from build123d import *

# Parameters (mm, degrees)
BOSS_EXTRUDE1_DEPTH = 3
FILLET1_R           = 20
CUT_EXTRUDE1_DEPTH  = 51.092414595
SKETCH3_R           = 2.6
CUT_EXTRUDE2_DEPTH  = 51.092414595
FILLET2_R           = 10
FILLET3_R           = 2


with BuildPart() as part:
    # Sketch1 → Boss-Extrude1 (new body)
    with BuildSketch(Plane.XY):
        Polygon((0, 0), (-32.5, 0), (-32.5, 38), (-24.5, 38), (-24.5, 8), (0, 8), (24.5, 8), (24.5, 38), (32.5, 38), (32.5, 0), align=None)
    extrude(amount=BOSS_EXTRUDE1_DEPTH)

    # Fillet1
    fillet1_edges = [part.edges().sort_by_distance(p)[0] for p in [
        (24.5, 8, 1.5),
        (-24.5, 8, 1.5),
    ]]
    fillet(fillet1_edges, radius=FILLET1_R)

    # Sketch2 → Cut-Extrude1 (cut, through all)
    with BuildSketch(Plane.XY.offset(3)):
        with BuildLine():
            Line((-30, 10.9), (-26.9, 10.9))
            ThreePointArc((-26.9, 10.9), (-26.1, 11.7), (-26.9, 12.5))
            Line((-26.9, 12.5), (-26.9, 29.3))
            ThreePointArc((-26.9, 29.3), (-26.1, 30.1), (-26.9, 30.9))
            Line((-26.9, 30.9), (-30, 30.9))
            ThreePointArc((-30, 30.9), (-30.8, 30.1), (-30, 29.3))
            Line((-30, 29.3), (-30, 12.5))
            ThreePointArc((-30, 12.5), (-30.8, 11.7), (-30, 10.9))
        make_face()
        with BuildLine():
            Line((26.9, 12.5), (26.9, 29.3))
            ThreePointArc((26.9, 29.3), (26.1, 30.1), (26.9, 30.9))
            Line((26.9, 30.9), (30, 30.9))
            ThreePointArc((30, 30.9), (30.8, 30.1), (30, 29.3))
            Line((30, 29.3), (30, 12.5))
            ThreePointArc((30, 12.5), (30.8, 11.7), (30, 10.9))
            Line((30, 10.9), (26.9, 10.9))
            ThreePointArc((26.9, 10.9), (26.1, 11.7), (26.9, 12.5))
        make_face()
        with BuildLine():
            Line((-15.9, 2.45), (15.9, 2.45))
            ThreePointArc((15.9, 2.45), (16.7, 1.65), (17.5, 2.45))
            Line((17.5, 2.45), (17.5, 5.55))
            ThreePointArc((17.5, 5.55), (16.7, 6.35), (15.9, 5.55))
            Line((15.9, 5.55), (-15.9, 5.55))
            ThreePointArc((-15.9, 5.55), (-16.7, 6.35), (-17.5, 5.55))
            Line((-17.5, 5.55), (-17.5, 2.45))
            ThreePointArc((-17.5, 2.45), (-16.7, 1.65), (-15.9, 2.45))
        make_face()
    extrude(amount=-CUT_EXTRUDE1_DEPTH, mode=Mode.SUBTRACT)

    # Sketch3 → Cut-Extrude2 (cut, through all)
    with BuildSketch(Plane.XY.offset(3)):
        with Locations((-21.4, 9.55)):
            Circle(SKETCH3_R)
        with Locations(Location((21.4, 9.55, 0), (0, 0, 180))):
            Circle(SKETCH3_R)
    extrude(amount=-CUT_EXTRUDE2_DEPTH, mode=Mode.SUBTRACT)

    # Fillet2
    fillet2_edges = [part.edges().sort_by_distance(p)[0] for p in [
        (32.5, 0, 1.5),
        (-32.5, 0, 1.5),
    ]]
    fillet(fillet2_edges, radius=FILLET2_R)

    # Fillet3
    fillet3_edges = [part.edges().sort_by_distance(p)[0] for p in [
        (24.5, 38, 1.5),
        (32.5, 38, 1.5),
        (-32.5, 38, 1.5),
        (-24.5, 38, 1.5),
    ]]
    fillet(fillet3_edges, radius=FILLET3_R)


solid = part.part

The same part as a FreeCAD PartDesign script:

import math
import FreeCAD as App
import Part
import Sketcher


def edges_at(feature, points):
    """Names of the edges that pass closest to the given points."""
    edges = feature.Shape.Edges
    near = lambda p: min(range(len(edges)), key=lambda i: edges[i].distToShape(Part.Vertex(*p))[0])
    return sorted({f"Edge{near(p) + 1}" for p in points})


def add_polygon(sketch, points):
    """Adds a closed chain of lines whose ends are joined by coincident constraints."""
    first, n = sketch.GeometryCount, len(points)
    for a, b in zip(points, points[1:] + points[:1]):
        sketch.addGeometry(Part.LineSegment(App.Vector(*a, 0), App.Vector(*b, 0)), False)
    for i in range(n):
        sketch.addConstraint(Sketcher.Constraint("Coincident", first + i, 2, first + (i + 1) % n, 1))

doc = App.newDocument("Part")
body = doc.addObject("PartDesign::Body", "Body")

sketch1 = body.newObject("Sketcher::SketchObject", "Sketch")
sketch1.AttachmentSupport = (doc.getObject("XY_Plane"), [""])
sketch1.MapMode = "FlatFace"
add_polygon(sketch1, [(-32, 0), (32, 0), (32, 38), (24, 38), (24, 8), (-24, 8), (-24, 38), (-32, 38)])
sketch1.addConstraint(Sketcher.Constraint("Horizontal", 0))
sketch1.addConstraint(Sketcher.Constraint("Vertical", 1))
sketch1.addConstraint(Sketcher.Constraint("Horizontal", 2))
sketch1.addConstraint(Sketcher.Constraint("Vertical", 3))
sketch1.addConstraint(Sketcher.Constraint("Horizontal", 4))
sketch1.addConstraint(Sketcher.Constraint("Vertical", 5))
sketch1.addConstraint(Sketcher.Constraint("Horizontal", 6))
sketch1.addConstraint(Sketcher.Constraint("Vertical", 7))
sketch1.addConstraint(Sketcher.Constraint("Symmetric", 0, 2, 7, 2, -1, 1))
sketch1.addConstraint(Sketcher.Constraint("Symmetric", 2, 2, 5, 2, -2))
sketch1.addConstraint(Sketcher.Constraint("DistanceX", 0, 1, 0, 2, 65.0))
sketch1.addConstraint(Sketcher.Constraint("DistanceX", 2, 2, 2, 1, 8.0))
sketch1.addConstraint(Sketcher.Constraint("DistanceY", 1, 1, 1, 2, 38.0))
sketch1.addConstraint(Sketcher.Constraint("DistanceY", 3, 2, 3, 1, 30.0))
pad1 = body.newObject("PartDesign::Pad", "Pad")
pad1.Profile = sketch1
pad1.Length = 3
doc.recompute()

fillet = body.newObject("PartDesign::Fillet", "Fillet")
fillet.Base = (pad1, edges_at(pad1, [(24.5, 8, 1.5), (-24.5, 8, 1.5)]))
fillet.Radius = 20

sketch2 = body.newObject("Sketcher::SketchObject", "Sketch001")
sketch2.AttachmentSupport = (doc.getObject("XY_Plane"), [""])
sketch2.MapMode = "FlatFace"
sketch2.AttachmentOffset = App.Placement(App.Vector(0, 0, 3), App.Rotation())
sketch2.addGeometry(Part.LineSegment(App.Vector(-30, 10.9, 0), App.Vector(-26.9, 10.9, 0)), False)
sketch2.addGeometry(Part.ArcOfCircle(Part.Circle(App.Vector(-26.9, 11.7, 0), App.Vector(0, 0, 1), 0.8), math.radians(-90), math.radians(90)), False)
sketch2.addGeometry(Part.LineSegment(App.Vector(-26.9, 12.5, 0), App.Vector(-26.9, 29.3, 0)), False)
sketch2.addGeometry(Part.ArcOfCircle(Part.Circle(App.Vector(-26.9, 30.1, 0), App.Vector(0, 0, 1), 0.8), math.radians(-90), math.radians(90)), False)
sketch2.addGeometry(Part.LineSegment(App.Vector(-26.9, 30.9, 0), App.Vector(-30, 30.9, 0)), False)
sketch2.addGeometry(Part.ArcOfCircle(Part.Circle(App.Vector(-30, 30.1, 0), App.Vector(0, 0, 1), 0.8), math.radians(90), math.radians(270)), False)
sketch2.addGeometry(Part.LineSegment(App.Vector(-30, 29.3, 0), App.Vector(-30, 12.5, 0)), False)
sketch2.addGeometry(Part.ArcOfCircle(Part.Circle(App.Vector(-30, 11.7, 0), App.Vector(0, 0, 1), 0.8), math.radians(90), math.radians(270)), False)
sketch2.addGeometry(Part.LineSegment(App.Vector(26.9, 29.3, 0), App.Vector(26.9, 12.5, 0)), False)
sketch2.addGeometry(Part.ArcOfCircle(Part.Circle(App.Vector(26.9, 11.7, 0), App.Vector(0, 0, 1), 0.8), math.radians(90), math.radians(270)), False)
sketch2.addGeometry(Part.LineSegment(App.Vector(26.9, 10.9, 0), App.Vector(30, 10.9, 0)), False)
sketch2.addGeometry(Part.ArcOfCircle(Part.Circle(App.Vector(30, 11.7, 0), App.Vector(0, 0, 1), 0.8), math.radians(-90), math.radians(90)), False)
sketch2.addGeometry(Part.LineSegment(App.Vector(30, 12.5, 0), App.Vector(30, 29.3, 0)), False)
sketch2.addGeometry(Part.ArcOfCircle(Part.Circle(App.Vector(30, 30.1, 0), App.Vector(0, 0, 1), 0.8), math.radians(-90), math.radians(90)), False)
sketch2.addGeometry(Part.LineSegment(App.Vector(30, 30.9, 0), App.Vector(26.9, 30.9, 0)), False)
sketch2.addGeometry(Part.ArcOfCircle(Part.Circle(App.Vector(26.9, 30.1, 0), App.Vector(0, 0, 1), 0.8), math.radians(90), math.radians(270)), False)
sketch2.addGeometry(Part.LineSegment(App.Vector(-15.9, 2.5, 0), App.Vector(15.9, 2.5, 0)), False)
sketch2.addGeometry(Part.ArcOfCircle(Part.Circle(App.Vector(16.7, 2.5, 0), App.Vector(0, 0, 1), 0.8), math.radians(180), math.radians(360)), False)
sketch2.addGeometry(Part.LineSegment(App.Vector(17.5, 2.5, 0), App.Vector(17.5, 5.5, 0)), False)
sketch2.addGeometry(Part.ArcOfCircle(Part.Circle(App.Vector(16.7, 5.5, 0), App.Vector(0, 0, 1), 0.8), math.radians(0), math.radians(180)), False)
sketch2.addGeometry(Part.LineSegment(App.Vector(15.9, 5.5, 0), App.Vector(-15.9, 5.5, 0)), False)
sketch2.addGeometry(Part.ArcOfCircle(Part.Circle(App.Vector(-16.7, 5.5, 0), App.Vector(0, 0, 1), 0.8), math.radians(0), math.radians(180)), False)
sketch2.addGeometry(Part.LineSegment(App.Vector(-17.5, 5.5, 0), App.Vector(-17.5, 2.5, 0)), False)
sketch2.addGeometry(Part.ArcOfCircle(Part.Circle(App.Vector(-16.7, 2.5, 0), App.Vector(0, 0, 1), 0.8), math.radians(180), math.radians(360)), False)
sketch2.addConstraint(Sketcher.Constraint("Tangent", 0, 2, 1, 1))
sketch2.addConstraint(Sketcher.Constraint("Coincident", 1, 2, 2, 1))
sketch2.addConstraint(Sketcher.Constraint("Coincident", 2, 2, 3, 1))
sketch2.addConstraint(Sketcher.Constraint("Tangent", 3, 2, 4, 1))
sketch2.addConstraint(Sketcher.Constraint("Tangent", 4, 2, 5, 1))
sketch2.addConstraint(Sketcher.Constraint("Coincident", 5, 2, 6, 1))
sketch2.addConstraint(Sketcher.Constraint("Coincident", 6, 2, 7, 1))
sketch2.addConstraint(Sketcher.Constraint("Tangent", 7, 2, 0, 1))
sketch2.addConstraint(Sketcher.Constraint("Coincident", 8, 2, 9, 1))
sketch2.addConstraint(Sketcher.Constraint("Tangent", 9, 2, 10, 1))
sketch2.addConstraint(Sketcher.Constraint("Tangent", 10, 2, 11, 1))
sketch2.addConstraint(Sketcher.Constraint("Coincident", 11, 2, 12, 1))
sketch2.addConstraint(Sketcher.Constraint("Coincident", 12, 2, 13, 1))
sketch2.addConstraint(Sketcher.Constraint("Tangent", 13, 2, 14, 1))
sketch2.addConstraint(Sketcher.Constraint("Tangent", 14, 2, 15, 1))
sketch2.addConstraint(Sketcher.Constraint("Coincident", 15, 2, 8, 1))
sketch2.addConstraint(Sketcher.Constraint("Coincident", 16, 2, 17, 1))
sketch2.addConstraint(Sketcher.Constraint("Tangent", 17, 2, 18, 1))
sketch2.addConstraint(Sketcher.Constraint("Tangent", 18, 2, 19, 1))
sketch2.addConstraint(Sketcher.Constraint("Coincident", 19, 2, 20, 1))
sketch2.addConstraint(Sketcher.Constraint("Coincident", 20, 2, 21, 1))
sketch2.addConstraint(Sketcher.Constraint("Tangent", 21, 2, 22, 1))
sketch2.addConstraint(Sketcher.Constraint("Tangent", 22, 2, 23, 1))
sketch2.addConstraint(Sketcher.Constraint("Coincident", 23, 2, 16, 1))
sketch2.addConstraint(Sketcher.Constraint("Horizontal", 0))
sketch2.addConstraint(Sketcher.Constraint("Vertical", 2))
sketch2.addConstraint(Sketcher.Constraint("Horizontal", 4))
sketch2.addConstraint(Sketcher.Constraint("Vertical", 6))
sketch2.addConstraint(Sketcher.Constraint("Vertical", 8))
sketch2.addConstraint(Sketcher.Constraint("Horizontal", 10))
sketch2.addConstraint(Sketcher.Constraint("Vertical", 12))
sketch2.addConstraint(Sketcher.Constraint("Horizontal", 14))
sketch2.addConstraint(Sketcher.Constraint("Horizontal", 16))
sketch2.addConstraint(Sketcher.Constraint("Vertical", 18))
sketch2.addConstraint(Sketcher.Constraint("Horizontal", 20))
sketch2.addConstraint(Sketcher.Constraint("Vertical", 22))
sketch2.addConstraint(Sketcher.Constraint("Equal", 1, 3))
sketch2.addConstraint(Sketcher.Constraint("Equal", 3, 5))
sketch2.addConstraint(Sketcher.Constraint("Equal", 5, 7))
sketch2.addConstraint(Sketcher.Constraint("Equal", 7, 9))
sketch2.addConstraint(Sketcher.Constraint("Equal", 9, 11))
sketch2.addConstraint(Sketcher.Constraint("Equal", 11, 13))
sketch2.addConstraint(Sketcher.Constraint("Equal", 13, 15))
sketch2.addConstraint(Sketcher.Constraint("Equal", 15, 17))
sketch2.addConstraint(Sketcher.Constraint("Equal", 17, 19))
sketch2.addConstraint(Sketcher.Constraint("Equal", 19, 21))
sketch2.addConstraint(Sketcher.Constraint("Equal", 21, 23))
sketch2.addConstraint(Sketcher.Constraint("Symmetric", 1, 3, 9, 3, -2))
sketch2.addConstraint(Sketcher.Constraint("Symmetric", 5, 3, 13, 3, -2))
sketch2.addConstraint(Sketcher.Constraint("Symmetric", 19, 3, 21, 3, -2))
sketch2.addConstraint(Sketcher.Constraint("Horizontal", 17, 3, 23, 3))
sketch2.addConstraint(Sketcher.Constraint("Horizontal", 23, 3, 16, 2))
sketch2.addConstraint(Sketcher.Constraint("Horizontal", 18, 2, 19, 2))
sketch2.addConstraint(Sketcher.Constraint("Vertical", 1, 3, 3, 3))
sketch2.addConstraint(Sketcher.Constraint("Vertical", 5, 3, 7, 3))
sketch2.addConstraint(Sketcher.Constraint("Vertical", 11, 3, 13, 3))
sketch2.addConstraint(Sketcher.Constraint("Vertical", 9, 3, 15, 3))
sketch2.addConstraint(Sketcher.Constraint("Vertical", 0, 2, 1, 2))
sketch2.addConstraint(Sketcher.Constraint("Vertical", 4, 2, 5, 2))
sketch2.addConstraint(Sketcher.Constraint("Vertical", 15, 3, 8, 2))
sketch2.addConstraint(Sketcher.Constraint("Vertical", 10, 2, 11, 2))
sketch2.addConstraint(Sketcher.Constraint("Equal", 14, 18))
sketch2.addConstraint(Sketcher.Constraint("Radius", 1, 0.8))
sketch2.addConstraint(Sketcher.Constraint("DistanceX", 0, 1, 0, 2, 3.1))
sketch2.addConstraint(Sketcher.Constraint("DistanceX", 16, 1, 16, 2, 31.8))
sketch2.addConstraint(Sketcher.Constraint("DistanceY", 2, 1, 2, 2, 16.8))
sketch2.addConstraint(Sketcher.Constraint("DistanceX", 5, 3, -1, 1, 30.0))
sketch2.addConstraint(Sketcher.Constraint("DistanceY", -1, 1, 1, 3, 11.7))
sketch2.addConstraint(Sketcher.Constraint("DistanceY", -1, 1, 17, 3, 2.45))
pocket1 = body.newObject("PartDesign::Pocket", "Pocket")
pocket1.Profile = sketch2
pocket1.Type = "ThroughAll"

sketch3 = body.newObject("Sketcher::SketchObject", "Sketch002")
sketch3.AttachmentSupport = (doc.getObject("XY_Plane"), [""])
sketch3.MapMode = "FlatFace"
sketch3.AttachmentOffset = App.Placement(App.Vector(0, 0, 3), App.Rotation())
sketch3.addGeometry(Part.Circle(App.Vector(-21.4, 9.6, 0), App.Vector(0, 0, 1), 2.6), False)
sketch3.addGeometry(Part.Circle(App.Vector(21.4, 9.6, 0), App.Vector(0, 0, 1), 2.6), False)
sketch3.addConstraint(Sketcher.Constraint("Equal", 0, 1))
sketch3.addConstraint(Sketcher.Constraint("Symmetric", 0, 3, 1, 3, -2))
sketch3.addConstraint(Sketcher.Constraint("Diameter", 0, 5.2))
sketch3.addConstraint(Sketcher.Constraint("DistanceX", 0, 3, -1, 1, 21.4))
sketch3.addConstraint(Sketcher.Constraint("DistanceY", -1, 1, 0, 3, 9.55))
pocket2 = body.newObject("PartDesign::Pocket", "Pocket001")
pocket2.Profile = sketch3
pocket2.Type = "ThroughAll"
doc.recompute()

fillet2 = body.newObject("PartDesign::Fillet", "Fillet001")
fillet2.Base = (pocket2, edges_at(pocket2, [(32.5, 0, 1.5), (-32.5, 0, 1.5)]))
fillet2.Radius = 10
doc.recompute()

fillet3 = body.newObject("PartDesign::Fillet", "Fillet002")
fillet3.Base = (fillet2, edges_at(fillet2, [
    (24.5, 38, 1.5),
    (32.5, 38, 1.5),
    (-32.5, 38, 1.5),
    (-24.5, 38, 1.5),
]))
fillet3.Radius = 2

doc.recompute()
